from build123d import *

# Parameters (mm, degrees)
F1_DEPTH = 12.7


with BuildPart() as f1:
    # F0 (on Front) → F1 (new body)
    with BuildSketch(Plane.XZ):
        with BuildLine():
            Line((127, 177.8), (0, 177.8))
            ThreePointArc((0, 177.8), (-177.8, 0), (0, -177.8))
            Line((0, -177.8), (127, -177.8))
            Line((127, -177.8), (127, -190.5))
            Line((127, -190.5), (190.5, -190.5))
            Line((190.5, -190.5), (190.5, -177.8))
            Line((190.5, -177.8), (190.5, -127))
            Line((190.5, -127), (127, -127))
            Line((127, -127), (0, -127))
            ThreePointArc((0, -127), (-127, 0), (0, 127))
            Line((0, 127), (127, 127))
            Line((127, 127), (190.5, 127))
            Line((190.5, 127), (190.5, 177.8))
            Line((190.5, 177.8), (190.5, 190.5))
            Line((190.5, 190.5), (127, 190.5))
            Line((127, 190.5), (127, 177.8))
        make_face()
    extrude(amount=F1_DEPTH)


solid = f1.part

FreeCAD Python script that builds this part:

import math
import FreeCAD as App
import Part
import Sketcher
Q = App.Units.Quantity

doc = App.newDocument("Part")
body = doc.addObject("PartDesign::Body", "Body")

# Sketch on XZ plane
sketch1 = body.newObject("Sketcher::SketchObject", "Sketch")
sketch1.AttachmentSupport = (doc.getObject("XZ_Plane"), [""])
sketch1.MapMode = "FlatFace"
sketch1.addGeometry(Part.LineSegment(App.Vector(127, 178, 0), App.Vector(0, 178, 0)), False)
sketch1.addGeometry(Part.ArcOfCircle(Part.Circle(App.Vector(0, 0, 0), App.Vector(0, 0, 1), 178), math.radians(90), math.radians(270)), False)
sketch1.addGeometry(Part.LineSegment(App.Vector(0, -178, 0), App.Vector(127, -178, 0)), False)
sketch1.addGeometry(Part.LineSegment(App.Vector(127, -178, 0), App.Vector(127, -190, 0)), False)
sketch1.addGeometry(Part.LineSegment(App.Vector(127, -190, 0), App.Vector(190, -190, 0)), False)
sketch1.addGeometry(Part.LineSegment(App.Vector(190, -190, 0), App.Vector(190, -127, 0)), False)
sketch1.addGeometry(Part.LineSegment(App.Vector(190, -127, 0), App.Vector(0, -127, 0)), False)
sketch1.addGeometry(Part.ArcOfCircle(Part.Circle(App.Vector(0, 0, 0), App.Vector(0, 0, 1), 127), math.radians(90), math.radians(270)), False)
sketch1.addGeometry(Part.LineSegment(App.Vector(0, 127, 0), App.Vector(190, 127, 0)), False)
sketch1.addGeometry(Part.LineSegment(App.Vector(190, 127, 0), App.Vector(190, 190, 0)), False)
sketch1.addGeometry(Part.LineSegment(App.Vector(190, 190, 0), App.Vector(127, 190, 0)), False)
sketch1.addGeometry(Part.LineSegment(App.Vector(127, 190, 0), App.Vector(127, 178, 0)), False)
sketch1.addConstraint(Sketcher.Constraint("Tangent", 0, 2, 1, 1))
sketch1.addConstraint(Sketcher.Constraint("Tangent", 1, 2, 2, 1))
sketch1.addConstraint(Sketcher.Constraint("Coincident", 2, 2, 3, 1))
sketch1.addConstraint(Sketcher.Constraint("Coincident", 3, 2, 4, 1))
sketch1.addConstraint(Sketcher.Constraint("Coincident", 4, 2, 5, 1))
sketch1.addConstraint(Sketcher.Constraint("Coincident", 5, 2, 6, 1))
sketch1.addConstraint(Sketcher.Constraint("Tangent", 6, 2, 7, 2))
sketch1.addConstraint(Sketcher.Constraint("Tangent", 7, 1, 8, 1))
sketch1.addConstraint(Sketcher.Constraint("Coincident", 8, 2, 9, 1))
sketch1.addConstraint(Sketcher.Constraint("Coincident", 9, 2, 10, 1))
sketch1.addConstraint(Sketcher.Constraint("Coincident", 10, 2, 11, 1))
sketch1.addConstraint(Sketcher.Constraint("Coincident", 11, 2, 0, 1))
sketch1.addConstraint(Sketcher.Constraint("Horizontal", 0))
sketch1.addConstraint(Sketcher.Constraint("Horizontal", 2))
sketch1.addConstraint(Sketcher.Constraint("Vertical", 3))
sketch1.addConstraint(Sketcher.Constraint("Horizontal", 4))
sketch1.addConstraint(Sketcher.Constraint("Vertical", 5))
sketch1.addConstraint(Sketcher.Constraint("Horizontal", 6))
sketch1.addConstraint(Sketcher.Constraint("Horizontal", 8))
sketch1.addConstraint(Sketcher.Constraint("Vertical", 9))
sketch1.addConstraint(Sketcher.Constraint("Horizontal", 10))
sketch1.addConstraint(Sketcher.Constraint("Vertical", 11))
sketch1.addConstraint(Sketcher.Constraint("Coincident", 1, 3, -1, 1))
sketch1.addConstraint(Sketcher.Constraint("Coincident", 7, 3, -1, 1))
sketch1.addConstraint(Sketcher.Constraint("Symmetric", 4, 2, 9, 2, -1))
sketch1.addConstraint(Sketcher.Constraint("Vertical", 3, 2, 10, 2))
sketch1.addConstraint(Sketcher.Constraint("Equal", 10, 5))
sketch1.addConstraint(Sketcher.Constraint("Radius", 1, Q("7 in")))
sketch1.addConstraint(Sketcher.Constraint("Radius", 7, Q("5 in")))
sketch1.addConstraint(Sketcher.Constraint("DistanceX", 0, 2, 0, 1, Q("5 in")))
sketch1.addConstraint(Sketcher.Constraint("DistanceX", 4, 1, 4, 2, Q("2.5 in")))
pad1 = body.newObject("PartDesign::Pad", "Pad")
pad1.Profile = sketch1
pad1.Length = Q("0.5 in")

doc.recompute()
